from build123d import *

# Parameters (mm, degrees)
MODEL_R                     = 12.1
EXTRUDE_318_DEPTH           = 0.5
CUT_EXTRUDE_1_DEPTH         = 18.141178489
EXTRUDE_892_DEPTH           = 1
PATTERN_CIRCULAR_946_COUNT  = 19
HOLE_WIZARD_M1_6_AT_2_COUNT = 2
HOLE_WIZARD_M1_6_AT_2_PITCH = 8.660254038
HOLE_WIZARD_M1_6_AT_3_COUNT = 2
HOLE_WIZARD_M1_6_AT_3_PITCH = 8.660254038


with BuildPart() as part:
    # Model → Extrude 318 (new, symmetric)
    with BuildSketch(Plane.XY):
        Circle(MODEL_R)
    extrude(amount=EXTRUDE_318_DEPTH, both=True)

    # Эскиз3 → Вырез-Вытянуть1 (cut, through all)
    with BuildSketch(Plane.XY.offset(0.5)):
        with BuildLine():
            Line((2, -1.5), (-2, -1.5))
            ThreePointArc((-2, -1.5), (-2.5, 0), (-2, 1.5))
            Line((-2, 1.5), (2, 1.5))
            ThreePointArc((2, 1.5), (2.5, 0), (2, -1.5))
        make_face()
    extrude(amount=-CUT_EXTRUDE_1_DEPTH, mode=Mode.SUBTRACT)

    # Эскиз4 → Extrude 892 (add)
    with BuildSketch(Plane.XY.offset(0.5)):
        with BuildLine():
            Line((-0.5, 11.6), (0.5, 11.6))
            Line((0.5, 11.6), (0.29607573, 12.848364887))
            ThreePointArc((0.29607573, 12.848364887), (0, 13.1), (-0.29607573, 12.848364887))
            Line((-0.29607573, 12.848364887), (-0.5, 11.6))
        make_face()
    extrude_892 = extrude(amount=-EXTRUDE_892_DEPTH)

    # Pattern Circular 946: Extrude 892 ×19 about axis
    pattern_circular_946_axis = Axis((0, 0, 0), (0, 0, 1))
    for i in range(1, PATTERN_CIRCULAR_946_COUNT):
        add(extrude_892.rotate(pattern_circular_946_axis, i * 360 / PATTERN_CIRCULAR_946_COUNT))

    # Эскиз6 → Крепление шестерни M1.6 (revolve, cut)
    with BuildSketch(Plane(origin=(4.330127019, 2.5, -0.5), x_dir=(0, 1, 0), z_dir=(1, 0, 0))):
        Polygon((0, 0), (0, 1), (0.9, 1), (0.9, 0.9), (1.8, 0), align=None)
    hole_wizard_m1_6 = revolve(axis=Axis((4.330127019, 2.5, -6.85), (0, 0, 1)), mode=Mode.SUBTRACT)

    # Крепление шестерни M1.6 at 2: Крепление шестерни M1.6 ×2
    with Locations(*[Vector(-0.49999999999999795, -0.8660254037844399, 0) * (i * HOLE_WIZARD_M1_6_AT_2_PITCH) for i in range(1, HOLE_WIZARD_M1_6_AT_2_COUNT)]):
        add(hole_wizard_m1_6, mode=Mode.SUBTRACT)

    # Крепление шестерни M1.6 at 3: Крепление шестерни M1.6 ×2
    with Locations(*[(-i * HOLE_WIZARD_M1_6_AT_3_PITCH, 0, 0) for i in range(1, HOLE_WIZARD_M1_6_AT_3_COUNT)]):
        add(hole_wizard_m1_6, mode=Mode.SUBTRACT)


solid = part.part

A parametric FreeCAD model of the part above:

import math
import FreeCAD as App
import Part
import Sketcher
from FreeCAD import Vector
Q = App.Units.Quantity


def add_polygon(sketch, points):
    """Adds a closed chain of lines whose ends are joined by coincident constraints."""
    first, n = sketch.GeometryCount, len(points)
    for a, b in zip(points, points[1:] + points[:1]):
        sketch.addGeometry(Part.LineSegment(App.Vector(*a, 0), App.Vector(*b, 0)), False)
    for i in range(n):
        sketch.addConstraint(Sketcher.Constraint("Coincident", first + i, 2, first + (i + 1) % n, 1))

doc = App.newDocument("Part")
body = doc.addObject("PartDesign::Body", "Body")

# Sketch on XY plane
sketch1 = body.newObject("Sketcher::SketchObject", "Sketch")
sketch1.AttachmentSupport = (doc.getObject("XY_Plane"), [""])
sketch1.MapMode = "FlatFace"
sketch1.addGeometry(Part.Circle(Vector(0, 0, 0), Vector(0, 0, 1), 12), False)
sketch1.addConstraint(Sketcher.Constraint("Coincident", 0, 3, -1, 1))
sketch1.addConstraint(Sketcher.Constraint("Diameter", 0, 24.2))
pad1 = body.newObject("PartDesign::Pad", "Pad")
pad1.Profile = sketch1
pad1.Length = 1
pad1.Midplane = True

# Sketch on XY plane
sketch2 = body.newObject("Sketcher::SketchObject", "Sketch001")
sketch2.AttachmentSupport = (doc.getObject("XY_Plane"), [""])
sketch2.MapMode = "FlatFace"
sketch2.AttachmentOffset = App.Placement(Vector(0, 0, 0.5), App.Rotation())
sketch2.addGeometry(Part.LineSegment(Vector(-2, -1.5, 0), Vector(2, -1.5, 0)), False)
sketch2.addGeometry(Part.ArcOfCircle(Part.Circle(Vector(0, 0, 0), Vector(0, 0, 1), 2.5), math.radians(-37), math.radians(37)), False)
sketch2.addGeometry(Part.LineSegment(Vector(2, 1.5, 0), Vector(-2, 1.5, 0)), False)
sketch2.addGeometry(Part.ArcOfCircle(Part.Circle(Vector(0, 0, 0), Vector(0, 0, 1), 2.5), math.radians(143), math.radians(217)), False)
sketch2.addConstraint(Sketcher.Constraint("Coincident", 0, 2, 1, 1))
sketch2.addConstraint(Sketcher.Constraint("Coincident", 1, 2, 2, 1))
sketch2.addConstraint(Sketcher.Constraint("Coincident", 2, 2, 3, 1))
sketch2.addConstraint(Sketcher.Constraint("Coincident", 3, 2, 0, 1))
sketch2.addConstraint(Sketcher.Constraint("Horizontal", 0))
sketch2.addConstraint(Sketcher.Constraint("Horizontal", 2))
sketch2.addConstraint(Sketcher.Constraint("Coincident", 1, 3, -1, 1))
sketch2.addConstraint(Sketcher.Constraint("Coincident", 3, 3, -1, 1))
sketch2.addConstraint(Sketcher.Constraint("Equal", 1, 3))
sketch2.addConstraint(Sketcher.Constraint("Vertical", 0, 2, 1, 2))
sketch2.addConstraint(Sketcher.Constraint("Radius", 1, 2.5))
sketch2.addConstraint(Sketcher.Constraint("DistanceX", 0, 1, 0, 2, 4.0))
pocket1 = body.newObject("PartDesign::Pocket", "Pocket")
pocket1.Profile = sketch2
pocket1.Type = "ThroughAll"

# Sketch on XY plane
sketch3 = body.newObject("Sketcher::SketchObject", "Sketch002")
sketch3.AttachmentSupport = (doc.getObject("XY_Plane"), [""])
sketch3.MapMode = "FlatFace"
sketch3.AttachmentOffset = App.Placement(Vector(0, 0, 0.5), App.Rotation())
sketch3.addGeometry(Part.LineSegment(Vector(-0.5, 11.6, 0), Vector(0.5, 11.6, 0)), False)
sketch3.addGeometry(Part.LineSegment(Vector(0.5, 11.6, 0), Vector(0.3, 12.85, 0)), False)
sketch3.addGeometry(Part.ArcOfCircle(Part.Circle(Vector(0, 12.8, 0), Vector(0, 0, 1), 0.3), math.radians(9), math.radians(171)), False)
sketch3.addGeometry(Part.LineSegment(Vector(-0.3, 12.85, 0), Vector(-0.5, 11.6, 0)), False)
sketch3.addConstraint(Sketcher.Constraint("Coincident", 0, 2, 1, 1))
sketch3.addConstraint(Sketcher.Constraint("Tangent", 1, 2, 2, 1))
sketch3.addConstraint(Sketcher.Constraint("Tangent", 2, 2, 3, 1))
sketch3.addConstraint(Sketcher.Constraint("Coincident", 3, 2, 0, 1))
sketch3.addConstraint(Sketcher.Constraint("Horizontal", 0))
sketch3.addConstraint(Sketcher.Constraint("Symmetric", 1, 2, 2, 2, -2))
sketch3.addConstraint(Sketcher.Constraint("Radius", 2, 0.3))
sketch3.addConstraint(Sketcher.Constraint("DistanceX", 0, 1, 0, 2, 1.0))
sketch3.addConstraint(Sketcher.Constraint("DistanceY", -1, 1, 2, 3, 12.8))
sketch3.addConstraint(Sketcher.Constraint("DistanceY", -1, 1, 0, 2, 11.6))
pad2 = body.newObject("PartDesign::Pad", "Pad001")
pad2.Profile = sketch3
pad2.Length = 1
pad2.Reversed = True
doc.recompute()

polarpattern = body.newObject("PartDesign::PolarPattern", "PolarPattern")
polarpattern.Originals = [pad2]
polarpattern.Axis = (doc.getObject("Z_Axis"), [""])
polarpattern.Angle = 360
polarpattern.Occurrences = 19
body.Tip = polarpattern

# Sketch on YZ plane
sketch4 = body.newObject("Sketcher::SketchObject", "Sketch003")
sketch4.AttachmentSupport = (doc.getObject("YZ_Plane"), [""])
sketch4.MapMode = "FlatFace"
sketch4.AttachmentOffset = App.Placement(Vector(0, 0, 4.330127), App.Rotation())
add_polygon(sketch4, [(2.5, 0.5), (2.5, -0.5), (4.3, -0.5), (3.4, 0.4), (3.4, 0.5)])  # lines 0-4
sketch4.addGeometry(Part.LineSegment(Vector(2.5, -0.5, 0), Vector(2.5, 0.5, 0)), True)  # axis
sketch4.addConstraint(Sketcher.Constraint("Vertical", 0))
sketch4.addConstraint(Sketcher.Constraint("Horizontal", 1))
sketch4.addConstraint(Sketcher.Constraint("Vertical", 3))
sketch4.addConstraint(Sketcher.Constraint("Horizontal", 4))
sketch4.addConstraint(Sketcher.Constraint("Vertical", 5))
sketch4.addConstraint(Sketcher.Constraint("Coincident", 5, 1, 0, 2))
sketch4.addConstraint(Sketcher.Constraint("Horizontal", 3, 2, 5, 2))
sketch4.addConstraint(Sketcher.Constraint("DistanceY", 0, 2, 0, 1, 1.0))
sketch4.addConstraint(Sketcher.Constraint("Angle", 2, Q("135 deg")))
sketch4.addConstraint(Sketcher.Constraint("DistanceX", 1, 1, 1, 2, 1.8))
sketch4.addConstraint(Sketcher.Constraint("DistanceX", 4, 2, 4, 1, 0.9))
sketch4.addConstraint(Sketcher.Constraint("DistanceX", -1, 1, 0, 2, 2.5))
sketch4.addConstraint(Sketcher.Constraint("DistanceY", 0, 2, -1, 1, 0.5))
groove = body.newObject("PartDesign::Groove", "Groove")
groove.Profile = sketch4
groove.ReferenceAxis = (sketch4, ["Axis0"])
groove.Angle = 360
doc.recompute()

datumline = body.newObject("PartDesign::Line", "DatumLine")
datumline.Placement = App.Placement(Vector(0, 0, 0), App.Rotation(Vector(0, 0, 1), Vector(-0.5, -0.866025404, 0)))
linearpattern = body.newObject("PartDesign::LinearPattern", "LinearPattern")
linearpattern.Originals = [groove]
linearpattern.Direction = (datumline, [""])
linearpattern.Mode = "offset"
linearpattern.Offset = 8.660254
linearpattern.Occurrences = 2
body.Tip = linearpattern
doc.recompute()

linearpattern2 = body.newObject("PartDesign::LinearPattern", "LinearPattern001")
linearpattern2.Originals = [groove]
linearpattern2.Direction = (doc.getObject("X_Axis"), [""])
linearpattern2.Mode = "offset"
linearpattern2.Offset = 8.660254
linearpattern2.Occurrences = 2
linearpattern2.Reversed = True
body.Tip = linearpattern2

doc.recompute()
